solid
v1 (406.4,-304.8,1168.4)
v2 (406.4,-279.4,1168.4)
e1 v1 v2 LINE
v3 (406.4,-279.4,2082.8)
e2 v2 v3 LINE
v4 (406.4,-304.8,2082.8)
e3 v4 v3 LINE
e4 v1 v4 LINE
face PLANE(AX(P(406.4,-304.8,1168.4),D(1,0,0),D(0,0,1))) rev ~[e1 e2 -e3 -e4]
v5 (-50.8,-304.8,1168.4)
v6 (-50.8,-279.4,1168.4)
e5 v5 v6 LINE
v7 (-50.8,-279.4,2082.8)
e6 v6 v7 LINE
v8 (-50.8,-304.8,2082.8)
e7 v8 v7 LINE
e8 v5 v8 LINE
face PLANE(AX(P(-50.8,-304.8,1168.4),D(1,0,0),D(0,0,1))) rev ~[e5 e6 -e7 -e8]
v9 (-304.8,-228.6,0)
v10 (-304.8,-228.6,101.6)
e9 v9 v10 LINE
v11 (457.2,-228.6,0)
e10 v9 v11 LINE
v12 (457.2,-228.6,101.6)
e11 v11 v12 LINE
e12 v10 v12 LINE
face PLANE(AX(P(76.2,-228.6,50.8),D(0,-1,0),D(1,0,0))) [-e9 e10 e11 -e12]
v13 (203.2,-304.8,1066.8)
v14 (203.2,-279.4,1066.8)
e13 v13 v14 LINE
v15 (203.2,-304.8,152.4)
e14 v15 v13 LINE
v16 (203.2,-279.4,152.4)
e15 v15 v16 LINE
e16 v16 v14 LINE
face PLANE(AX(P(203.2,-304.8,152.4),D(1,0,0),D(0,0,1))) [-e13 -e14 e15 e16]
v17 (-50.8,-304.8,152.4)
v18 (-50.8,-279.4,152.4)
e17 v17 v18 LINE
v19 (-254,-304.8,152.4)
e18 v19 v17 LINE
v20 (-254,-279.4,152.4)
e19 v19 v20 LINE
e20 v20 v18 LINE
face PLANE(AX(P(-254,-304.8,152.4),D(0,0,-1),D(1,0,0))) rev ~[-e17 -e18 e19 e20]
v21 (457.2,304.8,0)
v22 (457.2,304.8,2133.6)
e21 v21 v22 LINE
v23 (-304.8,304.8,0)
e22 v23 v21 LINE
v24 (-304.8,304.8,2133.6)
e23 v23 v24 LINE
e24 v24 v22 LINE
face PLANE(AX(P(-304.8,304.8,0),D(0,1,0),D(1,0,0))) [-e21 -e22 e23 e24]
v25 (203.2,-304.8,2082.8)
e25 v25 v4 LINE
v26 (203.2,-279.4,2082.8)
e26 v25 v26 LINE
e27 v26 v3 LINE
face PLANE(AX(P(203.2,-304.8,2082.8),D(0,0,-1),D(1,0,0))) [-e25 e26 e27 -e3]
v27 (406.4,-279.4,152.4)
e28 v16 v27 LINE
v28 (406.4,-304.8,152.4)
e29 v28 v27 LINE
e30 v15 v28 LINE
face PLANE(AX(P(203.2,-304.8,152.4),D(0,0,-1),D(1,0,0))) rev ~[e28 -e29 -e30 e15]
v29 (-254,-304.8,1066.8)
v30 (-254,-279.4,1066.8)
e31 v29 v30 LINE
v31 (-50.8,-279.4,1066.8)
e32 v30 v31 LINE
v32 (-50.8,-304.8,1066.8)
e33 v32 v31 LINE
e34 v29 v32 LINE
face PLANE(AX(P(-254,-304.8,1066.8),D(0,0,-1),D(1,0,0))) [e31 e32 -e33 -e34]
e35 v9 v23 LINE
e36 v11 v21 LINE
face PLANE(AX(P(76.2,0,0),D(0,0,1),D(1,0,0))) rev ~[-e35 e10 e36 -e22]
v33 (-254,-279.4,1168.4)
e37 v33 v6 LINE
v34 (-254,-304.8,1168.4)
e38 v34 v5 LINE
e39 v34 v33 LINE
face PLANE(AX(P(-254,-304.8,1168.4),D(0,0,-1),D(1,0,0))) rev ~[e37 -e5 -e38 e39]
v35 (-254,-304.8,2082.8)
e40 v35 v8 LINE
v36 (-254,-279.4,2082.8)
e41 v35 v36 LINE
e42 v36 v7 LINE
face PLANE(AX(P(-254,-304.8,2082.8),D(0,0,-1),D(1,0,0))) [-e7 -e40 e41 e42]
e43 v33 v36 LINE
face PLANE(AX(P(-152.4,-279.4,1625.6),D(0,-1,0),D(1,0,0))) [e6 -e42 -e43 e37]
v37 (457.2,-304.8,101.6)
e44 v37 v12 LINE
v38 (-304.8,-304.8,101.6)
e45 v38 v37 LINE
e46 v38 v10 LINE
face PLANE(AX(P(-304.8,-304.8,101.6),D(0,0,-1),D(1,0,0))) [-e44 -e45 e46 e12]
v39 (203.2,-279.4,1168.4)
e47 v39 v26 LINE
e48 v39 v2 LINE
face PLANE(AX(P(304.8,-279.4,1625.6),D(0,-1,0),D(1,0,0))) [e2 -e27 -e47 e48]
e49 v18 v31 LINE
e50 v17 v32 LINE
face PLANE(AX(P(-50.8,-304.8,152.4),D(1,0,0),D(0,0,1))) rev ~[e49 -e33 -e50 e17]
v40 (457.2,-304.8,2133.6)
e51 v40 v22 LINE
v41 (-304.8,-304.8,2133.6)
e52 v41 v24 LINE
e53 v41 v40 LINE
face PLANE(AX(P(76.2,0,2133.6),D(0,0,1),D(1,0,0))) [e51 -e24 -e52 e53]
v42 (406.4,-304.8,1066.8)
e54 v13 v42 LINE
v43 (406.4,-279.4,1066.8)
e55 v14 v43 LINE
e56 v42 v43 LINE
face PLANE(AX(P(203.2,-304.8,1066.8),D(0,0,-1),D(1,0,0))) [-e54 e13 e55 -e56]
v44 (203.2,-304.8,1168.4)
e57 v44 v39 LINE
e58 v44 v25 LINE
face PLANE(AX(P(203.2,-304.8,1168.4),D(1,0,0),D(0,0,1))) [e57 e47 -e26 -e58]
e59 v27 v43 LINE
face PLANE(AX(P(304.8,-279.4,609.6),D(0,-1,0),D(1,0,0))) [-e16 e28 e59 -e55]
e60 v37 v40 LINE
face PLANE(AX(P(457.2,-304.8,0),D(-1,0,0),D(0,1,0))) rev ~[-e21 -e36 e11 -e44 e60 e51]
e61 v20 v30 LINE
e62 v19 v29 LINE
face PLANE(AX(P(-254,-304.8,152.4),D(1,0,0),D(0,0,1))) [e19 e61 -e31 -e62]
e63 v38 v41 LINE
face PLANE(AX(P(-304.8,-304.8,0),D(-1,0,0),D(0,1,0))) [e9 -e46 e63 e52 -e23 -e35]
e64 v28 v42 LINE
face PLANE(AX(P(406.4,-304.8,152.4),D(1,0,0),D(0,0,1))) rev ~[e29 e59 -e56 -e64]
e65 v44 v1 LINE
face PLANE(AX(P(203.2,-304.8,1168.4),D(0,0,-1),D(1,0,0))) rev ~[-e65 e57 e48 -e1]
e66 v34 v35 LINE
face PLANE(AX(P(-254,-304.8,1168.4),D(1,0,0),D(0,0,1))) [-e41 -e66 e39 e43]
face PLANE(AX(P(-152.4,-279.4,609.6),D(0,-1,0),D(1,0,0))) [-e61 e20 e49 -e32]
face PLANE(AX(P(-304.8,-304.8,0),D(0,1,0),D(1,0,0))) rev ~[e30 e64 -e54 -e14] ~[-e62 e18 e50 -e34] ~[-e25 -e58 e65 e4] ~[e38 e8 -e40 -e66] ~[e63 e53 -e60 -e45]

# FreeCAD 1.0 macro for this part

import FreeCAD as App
import Part
import Sketcher
from FreeCAD import Vector
Q = App.Units.Quantity

doc = App.newDocument("Part")
body = doc.addObject("PartDesign::Body", "Body")

# Sketch on XY plane
sketch1 = doc.addObject("Sketcher::SketchObject", "Sketch")
body.addObject(sketch1)
sketch1.AttachmentSupport = (doc.XY_Plane, [""])
sketch1.MapMode = "FlatFace"
sketch1.addGeometry([
    Part.LineSegment(Vector(-305, 305, 0), Vector(-305, -305, 0)),
    Part.LineSegment(Vector(-305, -305, 0), Vector(457, -305, 0)),
    Part.LineSegment(Vector(457, -305, 0), Vector(457, 305, 0)),
    Part.LineSegment(Vector(457, 305, 0), Vector(-305, 305, 0)),
], False)
sketch1.addConstraint([
    Sketcher.Constraint("Coincident", 0, 2, 1, 1),
    Sketcher.Constraint("Coincident", 1, 2, 2, 1),
    Sketcher.Constraint("Coincident", 2, 2, 3, 1),
    Sketcher.Constraint("Coincident", 3, 2, 0, 1),
    Sketcher.Constraint("Vertical", 0),
    Sketcher.Constraint("Horizontal", 1),
    Sketcher.Constraint("Vertical", 2),
    Sketcher.Constraint("Horizontal", 3),
    Sketcher.Constraint("DistanceX", 1, 1, 1, 2, Q("30 in")),
    Sketcher.Constraint("DistanceY", 0, 2, 0, 1, Q("24 in")),
    Sketcher.Constraint("DistanceX", 0, 2, -1, 1, Q("12 in")),
    Sketcher.Constraint("DistanceY", 0, 2, -1, 1, Q("12 in")),
])
pad1 = doc.addObject("PartDesign::Pad", "Pad")
body.addObject(pad1)
pad1.Profile = sketch1
pad1.Length = Q("84 in")

# Sketch on XZ plane
sketch2 = doc.addObject("Sketcher::SketchObject", "Sketch001")
body.addObject(sketch2)
sketch2.AttachmentSupport = (doc.XZ_Plane, [""])
sketch2.MapMode = "FlatFace"
sketch2.AttachmentOffset = App.Placement(Vector(0, 0, 12 * 25.4), App.Rotation())
sketch2.addGeometry([
    Part.LineSegment(Vector(-305, 102, 0), Vector(-305, 0, 0)),
    Part.LineSegment(Vector(-305, 0, 0), Vector(457, 0, 0)),
    Part.LineSegment(Vector(457, 0, 0), Vector(457, 102, 0)),
    Part.LineSegment(Vector(457, 102, 0), Vector(-305, 102, 0)),
], False)
sketch2.addConstraint([
    Sketcher.Constraint("Coincident", 0, 2, 1, 1),
    Sketcher.Constraint("Coincident", 1, 2, 2, 1),
    Sketcher.Constraint("Coincident", 2, 2, 3, 1),
    Sketcher.Constraint("Coincident", 3, 2, 0, 1),
    Sketcher.Constraint("Vertical", 0),
    Sketcher.Constraint("Horizontal", 1),
    Sketcher.Constraint("Vertical", 2),
    Sketcher.Constraint("Horizontal", 3),
    Sketcher.Constraint("PointOnObject", 0, 2, -1),
    Sketcher.Constraint("DistanceX", 1, 1, 1, 2, Q("30 in")),
    Sketcher.Constraint("DistanceY", 0, 2, 0, 1, Q("4 in")),
    Sketcher.Constraint("DistanceX", 0, 2, -1, 1, Q("12 in")),
])
pocket1 = doc.addObject("PartDesign::Pocket", "Pocket")
body.addObject(pocket1)
pocket1.Profile = sketch2
pocket1.Length = Q("3 in")

# Sketch on XZ plane
sketch3 = doc.addObject("Sketcher::SketchObject", "Sketch002")
body.addObject(sketch3)
sketch3.AttachmentSupport = (doc.XZ_Plane, [""])
sketch3.MapMode = "FlatFace"
sketch3.AttachmentOffset = App.Placement(Vector(0, 0, 12 * 25.4), App.Rotation())
sketch3.addGeometry([
    Part.LineSegment(Vector(-254, 2083, 0), Vector(-254, 1168, 0)),  # 0
    Part.LineSegment(Vector(-254, 1168, 0), Vector(-51, 1168, 0)),  # 1
    Part.LineSegment(Vector(-51, 1168, 0), Vector(-51, 2083, 0)),  # 2
    Part.LineSegment(Vector(-51, 2083, 0), Vector(-254, 2083, 0)),  # 3
    Part.LineSegment(Vector(203, 2083, 0), Vector(203, 1168, 0)),  # 4
    Part.LineSegment(Vector(203, 1168, 0), Vector(406, 1168, 0)),  # 5
    Part.LineSegment(Vector(406, 1168, 0), Vector(406, 2083, 0)),  # 6
    Part.LineSegment(Vector(406, 2083, 0), Vector(203, 2083, 0)),  # 7
    Part.LineSegment(Vector(203, 1067, 0), Vector(203, 152, 0)),  # 8
    Part.LineSegment(Vector(203, 152, 0), Vector(406, 152, 0)),  # 9
    Part.LineSegment(Vector(406, 152, 0), Vector(406, 1067, 0)),  # 10
    Part.LineSegment(Vector(406, 1067, 0), Vector(203, 1067, 0)),  # 11
    Part.LineSegment(Vector(-254, 1067, 0), Vector(-254, 152, 0)),  # 12
    Part.LineSegment(Vector(-254, 152, 0), Vector(-51, 152, 0)),  # 13
    Part.LineSegment(Vector(-51, 152, 0), Vector(-51, 1067, 0)),  # 14
    Part.LineSegment(Vector(-51, 1067, 0), Vector(-254, 1067, 0)),  # 15
], False)
sketch3.addConstraint([
    Sketcher.Constraint("Coincident", 0, 2, 1, 1),
    Sketcher.Constraint("Coincident", 1, 2, 2, 1),
    Sketcher.Constraint("Coincident", 2, 2, 3, 1),
    Sketcher.Constraint("Coincident", 3, 2, 0, 1),
    Sketcher.Constraint("Coincident", 4, 2, 5, 1),
    Sketcher.Constraint("Coincident", 5, 2, 6, 1),
    Sketcher.Constraint("Coincident", 6, 2, 7, 1),
    Sketcher.Constraint("Coincident", 7, 2, 4, 1),
    Sketcher.Constraint("Coincident", 8, 2, 9, 1),
    Sketcher.Constraint("Coincident", 9, 2, 10, 1),
    Sketcher.Constraint("Coincident", 10, 2, 11, 1),
    Sketcher.Constraint("Coincident", 11, 2, 8, 1),
    Sketcher.Constraint("Coincident", 12, 2, 13, 1),
    Sketcher.Constraint("Coincident", 13, 2, 14, 1),
    Sketcher.Constraint("Coincident", 14, 2, 15, 1),
    Sketcher.Constraint("Coincident", 15, 2, 12, 1),
    Sketcher.Constraint("Vertical", 0),
    Sketcher.Constraint("Horizontal", 1),
    Sketcher.Constraint("Vertical", 2),
    Sketcher.Constraint("Horizontal", 3),
    Sketcher.Constraint("Vertical", 4),
    Sketcher.Constraint("Horizontal", 5),
    Sketcher.Constraint("Vertical", 6),
    Sketcher.Constraint("Horizontal", 7),
    Sketcher.Constraint("Vertical", 8),
    Sketcher.Constraint("Horizontal", 9),
    Sketcher.Constraint("Vertical", 10),
    Sketcher.Constraint("Horizontal", 11),
    Sketcher.Constraint("Vertical", 12),
    Sketcher.Constraint("Horizontal", 13),
    Sketcher.Constraint("Vertical", 14),
    Sketcher.Constraint("Horizontal", 15),
    Sketcher.Constraint("Horizontal", 1, 2, 4, 2),
    Sketcher.Constraint("Horizontal", 3, 2, 6, 2),
    Sketcher.Constraint("Horizontal", 9, 2, 12, 2),
    Sketcher.Constraint("Horizontal", 11, 2, 14, 2),
    Sketcher.Constraint("Vertical", 7, 2, 8, 2),
    Sketcher.Constraint("Vertical", 6, 2, 9, 2),
    Sketcher.Constraint("Vertical", 3, 2, 12, 2),
    Sketcher.Constraint("Vertical", 2, 2, 13, 2),
    Sketcher.Constraint("Equal", 3, 5),
    Sketcher.Constraint("Equal", 6, 8),
    Sketcher.Constraint("DistanceX", 1, 1, 1, 2, Q("8 in")),
    Sketcher.Constraint("DistanceY", 0, 2, 0, 1, Q("36 in")),
    Sketcher.Constraint("DistanceX", 0, 2, -1, 1, Q("10 in")),
    Sketcher.Constraint("DistanceY", -1, 1, 0, 2, Q("46 in")),
    Sketcher.Constraint("DistanceX", -1, 1, 4, 2, Q("8 in")),
    Sketcher.Constraint("DistanceY", -1, 1, 8, 2, Q("6 in")),
])
pocket2 = doc.addObject("PartDesign::Pocket", "Pocket001")
body.addObject(pocket2)
pocket2.Profile = sketch3
pocket2.Length = Q("1 in")

doc.recompute()
